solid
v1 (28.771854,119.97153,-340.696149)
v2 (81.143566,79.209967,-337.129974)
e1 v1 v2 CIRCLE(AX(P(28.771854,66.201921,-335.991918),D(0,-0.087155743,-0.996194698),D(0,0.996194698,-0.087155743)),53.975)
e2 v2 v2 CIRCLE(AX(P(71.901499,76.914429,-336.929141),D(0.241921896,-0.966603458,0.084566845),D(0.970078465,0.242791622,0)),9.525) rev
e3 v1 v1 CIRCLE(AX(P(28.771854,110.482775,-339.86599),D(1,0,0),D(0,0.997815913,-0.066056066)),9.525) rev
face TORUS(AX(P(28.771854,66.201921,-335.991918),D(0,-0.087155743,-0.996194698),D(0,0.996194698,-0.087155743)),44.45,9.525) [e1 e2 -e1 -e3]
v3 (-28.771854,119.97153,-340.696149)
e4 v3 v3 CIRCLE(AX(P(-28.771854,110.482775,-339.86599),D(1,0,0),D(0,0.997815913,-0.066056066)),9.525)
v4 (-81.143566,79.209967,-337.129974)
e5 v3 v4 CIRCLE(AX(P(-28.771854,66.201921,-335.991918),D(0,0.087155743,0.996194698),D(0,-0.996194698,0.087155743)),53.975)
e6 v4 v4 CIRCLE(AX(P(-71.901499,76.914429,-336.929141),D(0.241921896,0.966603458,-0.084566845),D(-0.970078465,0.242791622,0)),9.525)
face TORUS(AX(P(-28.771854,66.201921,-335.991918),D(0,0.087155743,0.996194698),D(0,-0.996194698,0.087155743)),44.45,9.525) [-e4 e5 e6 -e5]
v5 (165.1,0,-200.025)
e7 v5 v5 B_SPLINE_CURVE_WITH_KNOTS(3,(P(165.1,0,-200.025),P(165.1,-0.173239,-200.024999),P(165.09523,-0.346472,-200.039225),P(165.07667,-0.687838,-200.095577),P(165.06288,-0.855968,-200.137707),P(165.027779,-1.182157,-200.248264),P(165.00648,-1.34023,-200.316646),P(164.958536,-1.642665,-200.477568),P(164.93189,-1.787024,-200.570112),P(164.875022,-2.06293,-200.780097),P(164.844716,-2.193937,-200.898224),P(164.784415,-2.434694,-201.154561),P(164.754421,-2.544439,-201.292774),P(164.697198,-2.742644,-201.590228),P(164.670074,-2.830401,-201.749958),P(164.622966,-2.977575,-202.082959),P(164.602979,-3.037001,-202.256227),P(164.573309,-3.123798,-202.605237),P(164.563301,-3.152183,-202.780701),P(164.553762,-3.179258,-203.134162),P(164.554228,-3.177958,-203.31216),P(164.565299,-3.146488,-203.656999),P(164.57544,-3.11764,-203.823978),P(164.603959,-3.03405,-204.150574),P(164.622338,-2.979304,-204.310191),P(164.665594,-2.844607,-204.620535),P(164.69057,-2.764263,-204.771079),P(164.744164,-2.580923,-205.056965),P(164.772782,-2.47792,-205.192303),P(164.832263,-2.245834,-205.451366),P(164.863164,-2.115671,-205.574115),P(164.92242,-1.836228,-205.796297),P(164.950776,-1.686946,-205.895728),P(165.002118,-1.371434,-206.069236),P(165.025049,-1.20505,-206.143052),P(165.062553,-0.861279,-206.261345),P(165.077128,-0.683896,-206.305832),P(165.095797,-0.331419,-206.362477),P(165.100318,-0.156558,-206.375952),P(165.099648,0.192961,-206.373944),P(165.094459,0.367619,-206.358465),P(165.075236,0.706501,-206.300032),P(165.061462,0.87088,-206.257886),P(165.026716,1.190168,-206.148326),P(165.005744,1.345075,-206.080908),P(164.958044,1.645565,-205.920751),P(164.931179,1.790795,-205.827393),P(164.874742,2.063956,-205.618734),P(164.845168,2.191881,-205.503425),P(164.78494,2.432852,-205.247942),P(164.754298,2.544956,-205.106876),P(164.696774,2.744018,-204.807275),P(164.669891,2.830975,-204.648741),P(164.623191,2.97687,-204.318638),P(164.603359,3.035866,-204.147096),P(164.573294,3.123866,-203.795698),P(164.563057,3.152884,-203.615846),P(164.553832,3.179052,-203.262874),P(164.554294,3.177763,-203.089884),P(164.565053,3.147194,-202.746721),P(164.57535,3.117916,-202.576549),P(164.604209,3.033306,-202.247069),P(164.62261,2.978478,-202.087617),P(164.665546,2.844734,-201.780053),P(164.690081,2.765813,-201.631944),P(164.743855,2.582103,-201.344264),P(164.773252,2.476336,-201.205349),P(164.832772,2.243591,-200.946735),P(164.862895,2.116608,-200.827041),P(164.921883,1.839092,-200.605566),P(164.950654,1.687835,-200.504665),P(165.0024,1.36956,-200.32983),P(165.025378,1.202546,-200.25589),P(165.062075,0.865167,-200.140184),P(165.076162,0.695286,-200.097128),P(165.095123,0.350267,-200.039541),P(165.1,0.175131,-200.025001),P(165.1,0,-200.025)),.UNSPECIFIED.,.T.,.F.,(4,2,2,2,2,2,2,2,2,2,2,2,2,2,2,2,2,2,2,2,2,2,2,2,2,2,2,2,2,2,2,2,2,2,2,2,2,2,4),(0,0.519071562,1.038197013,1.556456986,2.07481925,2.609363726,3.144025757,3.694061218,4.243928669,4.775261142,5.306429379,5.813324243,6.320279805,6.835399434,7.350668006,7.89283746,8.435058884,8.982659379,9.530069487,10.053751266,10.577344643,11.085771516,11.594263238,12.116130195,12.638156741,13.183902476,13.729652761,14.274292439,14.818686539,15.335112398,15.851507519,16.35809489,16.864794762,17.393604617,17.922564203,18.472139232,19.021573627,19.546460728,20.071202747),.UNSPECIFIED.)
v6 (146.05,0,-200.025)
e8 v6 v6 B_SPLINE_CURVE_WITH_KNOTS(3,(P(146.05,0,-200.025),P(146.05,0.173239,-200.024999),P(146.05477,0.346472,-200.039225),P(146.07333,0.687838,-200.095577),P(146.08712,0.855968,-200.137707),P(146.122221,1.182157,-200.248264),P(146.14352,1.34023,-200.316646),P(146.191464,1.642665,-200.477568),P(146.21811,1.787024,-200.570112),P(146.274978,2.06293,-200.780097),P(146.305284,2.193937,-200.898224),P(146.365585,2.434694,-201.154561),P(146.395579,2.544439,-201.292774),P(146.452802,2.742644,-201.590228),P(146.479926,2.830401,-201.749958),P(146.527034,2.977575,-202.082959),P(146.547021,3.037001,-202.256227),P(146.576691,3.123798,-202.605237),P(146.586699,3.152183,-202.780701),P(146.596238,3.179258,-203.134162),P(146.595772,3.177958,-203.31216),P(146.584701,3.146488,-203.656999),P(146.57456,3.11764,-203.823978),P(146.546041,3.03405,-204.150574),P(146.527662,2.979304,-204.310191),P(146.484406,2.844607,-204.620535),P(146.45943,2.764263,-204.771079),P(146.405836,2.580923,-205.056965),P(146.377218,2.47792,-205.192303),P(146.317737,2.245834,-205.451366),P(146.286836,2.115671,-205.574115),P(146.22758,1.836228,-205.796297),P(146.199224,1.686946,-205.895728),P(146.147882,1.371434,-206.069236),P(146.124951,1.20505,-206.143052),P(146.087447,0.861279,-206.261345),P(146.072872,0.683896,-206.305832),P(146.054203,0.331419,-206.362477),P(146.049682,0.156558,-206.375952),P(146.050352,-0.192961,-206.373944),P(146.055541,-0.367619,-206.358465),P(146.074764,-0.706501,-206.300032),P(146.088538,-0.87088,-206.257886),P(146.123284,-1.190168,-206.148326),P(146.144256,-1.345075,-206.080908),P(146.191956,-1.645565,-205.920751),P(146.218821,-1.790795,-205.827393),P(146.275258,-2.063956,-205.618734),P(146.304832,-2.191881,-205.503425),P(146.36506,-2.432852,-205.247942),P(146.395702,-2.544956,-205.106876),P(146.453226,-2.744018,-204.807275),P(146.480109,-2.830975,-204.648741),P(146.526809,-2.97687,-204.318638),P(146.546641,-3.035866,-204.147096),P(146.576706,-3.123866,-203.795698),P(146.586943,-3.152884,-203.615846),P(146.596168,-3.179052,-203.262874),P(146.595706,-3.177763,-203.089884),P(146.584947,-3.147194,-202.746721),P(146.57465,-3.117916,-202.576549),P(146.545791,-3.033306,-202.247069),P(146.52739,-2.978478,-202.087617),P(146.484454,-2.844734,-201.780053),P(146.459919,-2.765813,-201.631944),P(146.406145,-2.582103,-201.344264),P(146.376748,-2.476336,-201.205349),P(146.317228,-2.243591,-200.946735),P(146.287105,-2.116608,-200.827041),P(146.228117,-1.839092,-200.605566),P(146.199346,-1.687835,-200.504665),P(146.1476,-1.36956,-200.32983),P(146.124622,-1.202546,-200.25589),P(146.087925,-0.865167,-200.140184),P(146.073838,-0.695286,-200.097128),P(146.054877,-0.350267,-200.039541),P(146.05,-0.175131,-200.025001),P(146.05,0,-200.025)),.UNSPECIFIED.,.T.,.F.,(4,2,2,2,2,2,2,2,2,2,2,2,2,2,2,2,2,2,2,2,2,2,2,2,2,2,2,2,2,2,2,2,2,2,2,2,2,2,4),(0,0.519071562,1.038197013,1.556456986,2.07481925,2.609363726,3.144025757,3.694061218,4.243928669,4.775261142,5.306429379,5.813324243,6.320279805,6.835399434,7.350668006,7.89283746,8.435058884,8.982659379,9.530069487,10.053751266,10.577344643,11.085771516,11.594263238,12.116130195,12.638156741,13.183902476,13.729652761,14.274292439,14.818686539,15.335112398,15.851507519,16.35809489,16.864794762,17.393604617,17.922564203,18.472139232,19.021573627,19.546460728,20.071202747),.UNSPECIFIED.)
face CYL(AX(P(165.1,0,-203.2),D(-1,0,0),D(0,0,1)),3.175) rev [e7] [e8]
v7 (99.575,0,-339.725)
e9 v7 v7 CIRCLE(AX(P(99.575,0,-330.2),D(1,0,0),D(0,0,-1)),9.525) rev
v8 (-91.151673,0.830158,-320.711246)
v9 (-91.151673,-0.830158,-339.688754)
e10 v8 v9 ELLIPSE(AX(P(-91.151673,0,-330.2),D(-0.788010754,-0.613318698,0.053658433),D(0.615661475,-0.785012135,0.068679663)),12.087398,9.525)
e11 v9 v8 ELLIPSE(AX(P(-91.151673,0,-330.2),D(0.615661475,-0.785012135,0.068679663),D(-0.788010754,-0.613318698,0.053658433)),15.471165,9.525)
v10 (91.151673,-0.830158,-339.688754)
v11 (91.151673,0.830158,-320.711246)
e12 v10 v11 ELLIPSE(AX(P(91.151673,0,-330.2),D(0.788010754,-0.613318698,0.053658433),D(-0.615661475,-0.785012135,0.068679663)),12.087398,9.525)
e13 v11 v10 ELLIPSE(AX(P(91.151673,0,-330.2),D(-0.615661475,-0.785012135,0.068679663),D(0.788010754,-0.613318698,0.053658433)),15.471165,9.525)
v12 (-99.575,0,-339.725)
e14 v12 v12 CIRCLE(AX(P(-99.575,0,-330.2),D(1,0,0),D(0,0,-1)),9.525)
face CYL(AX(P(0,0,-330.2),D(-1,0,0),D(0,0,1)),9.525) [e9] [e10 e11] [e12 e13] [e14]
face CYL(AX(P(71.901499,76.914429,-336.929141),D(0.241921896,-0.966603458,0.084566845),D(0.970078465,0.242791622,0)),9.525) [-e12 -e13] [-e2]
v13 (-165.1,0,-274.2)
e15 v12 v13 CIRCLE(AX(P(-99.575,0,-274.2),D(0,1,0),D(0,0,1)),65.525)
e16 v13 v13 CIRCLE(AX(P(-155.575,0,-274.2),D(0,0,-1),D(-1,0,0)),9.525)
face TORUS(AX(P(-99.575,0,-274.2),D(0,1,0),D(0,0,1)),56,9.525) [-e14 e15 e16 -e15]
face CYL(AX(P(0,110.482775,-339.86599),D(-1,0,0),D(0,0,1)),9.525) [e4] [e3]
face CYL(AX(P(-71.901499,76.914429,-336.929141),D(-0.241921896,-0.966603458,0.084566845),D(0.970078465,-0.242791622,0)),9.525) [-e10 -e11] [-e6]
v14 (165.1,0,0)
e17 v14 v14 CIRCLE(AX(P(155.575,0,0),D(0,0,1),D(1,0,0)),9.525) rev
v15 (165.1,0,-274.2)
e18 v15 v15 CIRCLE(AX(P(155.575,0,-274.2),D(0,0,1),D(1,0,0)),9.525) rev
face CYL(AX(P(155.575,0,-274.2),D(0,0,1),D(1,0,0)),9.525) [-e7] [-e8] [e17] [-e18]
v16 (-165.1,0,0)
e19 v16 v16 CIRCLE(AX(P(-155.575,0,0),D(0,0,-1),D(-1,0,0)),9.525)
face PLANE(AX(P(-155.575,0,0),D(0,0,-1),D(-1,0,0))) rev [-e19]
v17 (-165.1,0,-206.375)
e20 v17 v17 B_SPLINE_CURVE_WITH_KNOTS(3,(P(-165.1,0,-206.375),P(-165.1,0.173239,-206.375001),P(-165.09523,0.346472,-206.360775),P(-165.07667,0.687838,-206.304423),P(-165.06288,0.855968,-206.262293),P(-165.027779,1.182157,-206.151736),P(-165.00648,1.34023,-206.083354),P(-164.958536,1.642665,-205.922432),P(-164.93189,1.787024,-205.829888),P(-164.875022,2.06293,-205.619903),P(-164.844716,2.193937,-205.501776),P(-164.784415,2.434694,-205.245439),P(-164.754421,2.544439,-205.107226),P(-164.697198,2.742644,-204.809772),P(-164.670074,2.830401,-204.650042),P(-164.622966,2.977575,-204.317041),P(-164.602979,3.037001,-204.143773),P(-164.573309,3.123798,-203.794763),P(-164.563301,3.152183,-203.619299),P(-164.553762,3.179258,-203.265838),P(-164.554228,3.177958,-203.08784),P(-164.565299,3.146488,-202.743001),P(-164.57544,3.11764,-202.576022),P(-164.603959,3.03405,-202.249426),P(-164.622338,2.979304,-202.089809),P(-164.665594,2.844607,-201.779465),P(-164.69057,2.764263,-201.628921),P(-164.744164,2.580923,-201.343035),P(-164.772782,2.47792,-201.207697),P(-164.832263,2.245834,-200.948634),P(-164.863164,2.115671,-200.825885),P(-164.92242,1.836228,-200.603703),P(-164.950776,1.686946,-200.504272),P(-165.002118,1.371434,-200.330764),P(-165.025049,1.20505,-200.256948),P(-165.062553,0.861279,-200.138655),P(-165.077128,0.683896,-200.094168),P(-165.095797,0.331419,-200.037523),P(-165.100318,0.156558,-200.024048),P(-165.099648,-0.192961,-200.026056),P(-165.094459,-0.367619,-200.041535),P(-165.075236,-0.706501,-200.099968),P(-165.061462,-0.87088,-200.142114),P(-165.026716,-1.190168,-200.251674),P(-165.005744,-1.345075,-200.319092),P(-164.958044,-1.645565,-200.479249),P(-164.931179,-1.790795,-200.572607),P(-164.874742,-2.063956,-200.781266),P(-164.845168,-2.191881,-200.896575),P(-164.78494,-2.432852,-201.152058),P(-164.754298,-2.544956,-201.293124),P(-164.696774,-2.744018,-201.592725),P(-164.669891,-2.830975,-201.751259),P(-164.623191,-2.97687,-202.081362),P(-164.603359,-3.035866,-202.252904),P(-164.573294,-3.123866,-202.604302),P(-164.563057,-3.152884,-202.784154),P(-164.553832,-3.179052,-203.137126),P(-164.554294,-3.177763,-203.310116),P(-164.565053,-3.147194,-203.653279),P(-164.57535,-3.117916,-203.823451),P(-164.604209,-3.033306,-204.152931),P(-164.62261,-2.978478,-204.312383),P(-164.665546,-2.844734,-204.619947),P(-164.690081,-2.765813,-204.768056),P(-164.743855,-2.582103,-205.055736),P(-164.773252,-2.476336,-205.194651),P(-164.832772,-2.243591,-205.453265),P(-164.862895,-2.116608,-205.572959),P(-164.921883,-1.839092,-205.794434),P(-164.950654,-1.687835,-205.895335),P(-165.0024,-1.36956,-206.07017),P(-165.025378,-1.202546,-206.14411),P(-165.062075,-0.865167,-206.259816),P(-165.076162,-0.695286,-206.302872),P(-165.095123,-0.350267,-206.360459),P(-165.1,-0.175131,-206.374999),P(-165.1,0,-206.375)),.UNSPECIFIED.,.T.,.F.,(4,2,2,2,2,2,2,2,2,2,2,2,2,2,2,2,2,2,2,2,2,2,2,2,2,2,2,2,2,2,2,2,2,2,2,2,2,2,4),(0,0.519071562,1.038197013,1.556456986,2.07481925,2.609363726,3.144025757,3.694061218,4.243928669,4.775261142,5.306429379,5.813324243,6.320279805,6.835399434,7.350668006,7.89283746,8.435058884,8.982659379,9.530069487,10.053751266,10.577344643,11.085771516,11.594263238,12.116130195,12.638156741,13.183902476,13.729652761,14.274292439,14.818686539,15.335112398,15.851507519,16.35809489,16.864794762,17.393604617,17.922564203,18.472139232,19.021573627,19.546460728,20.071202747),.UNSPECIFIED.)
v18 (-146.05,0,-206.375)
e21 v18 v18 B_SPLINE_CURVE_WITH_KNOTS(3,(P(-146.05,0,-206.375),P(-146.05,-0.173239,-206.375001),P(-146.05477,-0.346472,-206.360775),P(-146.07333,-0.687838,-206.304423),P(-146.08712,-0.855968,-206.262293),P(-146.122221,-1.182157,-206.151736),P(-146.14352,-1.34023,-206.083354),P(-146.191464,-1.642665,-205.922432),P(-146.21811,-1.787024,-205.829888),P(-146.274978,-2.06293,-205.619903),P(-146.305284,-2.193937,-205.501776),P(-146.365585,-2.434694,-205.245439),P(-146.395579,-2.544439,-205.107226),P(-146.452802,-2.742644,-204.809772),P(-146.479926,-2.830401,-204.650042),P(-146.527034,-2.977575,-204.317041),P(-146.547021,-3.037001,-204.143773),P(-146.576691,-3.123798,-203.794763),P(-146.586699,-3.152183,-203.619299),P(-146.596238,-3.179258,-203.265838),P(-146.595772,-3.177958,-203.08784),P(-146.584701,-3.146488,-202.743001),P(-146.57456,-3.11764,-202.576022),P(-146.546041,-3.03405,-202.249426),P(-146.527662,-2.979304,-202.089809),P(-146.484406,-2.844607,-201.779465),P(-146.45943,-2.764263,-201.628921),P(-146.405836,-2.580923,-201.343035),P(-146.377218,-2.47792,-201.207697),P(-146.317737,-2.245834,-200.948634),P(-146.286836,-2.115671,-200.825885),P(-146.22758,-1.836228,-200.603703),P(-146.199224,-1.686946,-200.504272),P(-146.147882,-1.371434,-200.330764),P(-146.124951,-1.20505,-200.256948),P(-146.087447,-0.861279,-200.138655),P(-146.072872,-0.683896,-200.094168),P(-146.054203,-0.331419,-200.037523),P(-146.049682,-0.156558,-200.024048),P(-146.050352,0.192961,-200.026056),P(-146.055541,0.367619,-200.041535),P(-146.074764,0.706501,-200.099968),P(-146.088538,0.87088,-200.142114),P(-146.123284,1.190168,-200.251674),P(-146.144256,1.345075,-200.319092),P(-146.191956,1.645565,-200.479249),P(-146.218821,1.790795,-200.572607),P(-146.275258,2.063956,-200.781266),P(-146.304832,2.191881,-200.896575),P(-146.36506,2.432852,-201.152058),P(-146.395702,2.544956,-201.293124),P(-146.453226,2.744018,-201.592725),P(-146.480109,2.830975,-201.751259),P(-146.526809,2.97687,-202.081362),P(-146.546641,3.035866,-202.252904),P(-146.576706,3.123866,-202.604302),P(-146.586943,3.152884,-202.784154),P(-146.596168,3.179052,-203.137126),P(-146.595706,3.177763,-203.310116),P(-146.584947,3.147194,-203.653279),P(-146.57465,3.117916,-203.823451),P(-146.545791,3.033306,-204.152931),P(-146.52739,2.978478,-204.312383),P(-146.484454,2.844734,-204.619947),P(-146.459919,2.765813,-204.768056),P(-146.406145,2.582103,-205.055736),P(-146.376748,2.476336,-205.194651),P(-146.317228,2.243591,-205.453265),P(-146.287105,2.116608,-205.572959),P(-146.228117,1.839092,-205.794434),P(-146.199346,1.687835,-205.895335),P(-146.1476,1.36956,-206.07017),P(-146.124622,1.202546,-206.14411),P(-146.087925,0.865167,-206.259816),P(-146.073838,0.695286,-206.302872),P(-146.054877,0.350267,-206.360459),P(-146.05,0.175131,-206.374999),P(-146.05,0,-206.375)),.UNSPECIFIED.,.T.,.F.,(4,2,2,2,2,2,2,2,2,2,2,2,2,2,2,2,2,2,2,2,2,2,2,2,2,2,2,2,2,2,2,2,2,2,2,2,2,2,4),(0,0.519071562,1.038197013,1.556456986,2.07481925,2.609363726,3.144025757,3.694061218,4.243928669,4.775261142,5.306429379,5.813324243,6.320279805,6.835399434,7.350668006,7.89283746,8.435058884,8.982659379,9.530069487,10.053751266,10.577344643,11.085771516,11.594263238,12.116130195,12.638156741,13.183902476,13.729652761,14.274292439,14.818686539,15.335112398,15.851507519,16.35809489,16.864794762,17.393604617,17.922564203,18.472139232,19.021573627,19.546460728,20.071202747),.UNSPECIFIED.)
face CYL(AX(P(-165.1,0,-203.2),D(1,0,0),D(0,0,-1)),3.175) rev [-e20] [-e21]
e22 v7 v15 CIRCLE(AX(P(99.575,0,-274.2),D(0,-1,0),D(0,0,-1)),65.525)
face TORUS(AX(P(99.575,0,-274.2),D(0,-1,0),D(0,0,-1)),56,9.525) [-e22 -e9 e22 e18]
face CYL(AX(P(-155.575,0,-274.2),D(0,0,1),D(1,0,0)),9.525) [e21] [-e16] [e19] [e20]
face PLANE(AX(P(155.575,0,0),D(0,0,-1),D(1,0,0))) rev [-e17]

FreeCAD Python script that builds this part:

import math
import FreeCAD as App
import Part
import Sketcher
from FreeCAD import Vector
Q = App.Units.Quantity

doc = App.newDocument("Part")
body = doc.addObject("PartDesign::Body", "Body")

sketch1 = doc.addObject("Sketcher::SketchObject", "Sketch")
body.addObject(sketch1)
sketch1.AttachmentSupport = (doc.YZ_Plane, [""])
sketch1.MapMode = "FlatFace"
sketch1.addGeometry(Part.Circle(Vector(110, -340, 0), Vector(0, 0, 1), 10), False)
sketch1.addConstraint([
    Sketcher.Constraint("Diameter", 0, Q("0.75 in")),
    Sketcher.Constraint("DistanceY", 0, 3, -1, 1, Q("339.86599 mm")),
    Sketcher.Constraint("DistanceX", -1, 1, 0, 3, Q("110.482775 mm")),
])

sketch2 = doc.addObject("Sketcher::SketchObject", "Sketch001")
body.addObject(sketch2)
sketch2.Placement = App.Placement(Vector(0, -28.669314, -327.69176), App.Rotation(Vector(0, 0.996194698, -0.087155743), Vector(1, 0, 0), Vector(0, -0.087155743, -0.996194698), "ZXY"))
sketch2.addGeometry([
    Part.LineSegment(Vector(140, 0, 0), Vector(140, -29, 0)),
    Part.ArcOfCircle(Part.Circle(Vector(95, -29, 0), Vector(0, 0, 1), 44), math.radians(-76), math.radians(0)),
    Part.LineSegment(Vector(106, -72, 0), Vector(29, -91, 0)),
], False)
sketch2.addConstraint([
    Sketcher.Constraint("Tangent", 0, 2, 1, 2),
    Sketcher.Constraint("Tangent", 1, 1, 2, 1),
    Sketcher.Constraint("Vertical", 0),
    Sketcher.Constraint("PointOnObject", 0, 1, -1),
    Sketcher.Constraint("Radius", 1, Q("1.75 in")),
    Sketcher.Constraint("Angle", 2, Q("-166 deg")),
    Sketcher.Constraint("DistanceY", 1, 1, -1, 1, Q("71.901499 mm")),
    Sketcher.Constraint("DistanceX", 2, 2, 1, 3, Q("66.454802 mm")),
    Sketcher.Constraint("DistanceX", -1, 1, 1, 3, Q("95.233628 mm")),
])
doc.recompute()

additivepipe = doc.addObject("PartDesign::AdditivePipe", "AdditivePipe")
body.addObject(additivepipe)
additivepipe.Profile = sketch1
additivepipe.Spine = (sketch2, ["Edge1", "Edge2", "Edge3"])

sketch3 = doc.addObject("Sketcher::SketchObject", "Sketch002")
body.addObject(sketch3)
sketch3.AttachmentSupport = (doc.YZ_Plane, [""])
sketch3.MapMode = "FlatFace"
sketch3.addGeometry(Part.Circle(Vector(0, -330, 0), Vector(0, 0, 1), 10), False)
sketch3.addConstraint([
    Sketcher.Constraint("PointOnObject", 0, 3, -2),
    Sketcher.Constraint("Diameter", 0, Q("0.75 in")),
    Sketcher.Constraint("DistanceY", 0, 3, -1, 1, Q("13 in")),
])

sketch4 = doc.addObject("Sketcher::SketchObject", "Sketch003")
body.addObject(sketch4)
sketch4.AttachmentSupport = (doc.XZ_Plane, [""])
sketch4.MapMode = "FlatFace"
sketch4.addGeometry([
    Part.LineSegment(Vector(0, -330, 0), Vector(-100, -330, 0)),
    Part.ArcOfCircle(Part.Circle(Vector(-100, -274, 0), Vector(0, 0, 1), 56), math.radians(-180), math.radians(-90)),
    Part.LineSegment(Vector(-156, -274, 0), Vector(-156, 0, 0)),
], False)
sketch4.addConstraint([
    Sketcher.Constraint("Tangent", 0, 2, 1, 2),
    Sketcher.Constraint("Tangent", 1, 1, 2, 1),
    Sketcher.Constraint("Horizontal", 0),
    Sketcher.Constraint("Vertical", 2),
    Sketcher.Constraint("PointOnObject", 0, 1, -2),
    Sketcher.Constraint("PointOnObject", 2, 2, -1),
    Sketcher.Constraint("DistanceY", 0, 1, -1, 1, Q("13 in")),
    Sketcher.Constraint("Radius", 1, Q("56 mm")),
    Sketcher.Constraint("DistanceX", 1, 1, -1, 1, Q("6.125 in")),
])
doc.recompute()

additivepipe2 = doc.addObject("PartDesign::AdditivePipe", "AdditivePipe001")
body.addObject(additivepipe2)
additivepipe2.Profile = sketch3
additivepipe2.Spine = (sketch4, ["Edge1", "Edge2", "Edge3"])

sketch5 = doc.addObject("Sketcher::SketchObject", "Sketch004")
body.addObject(sketch5)
sketch5.AttachmentSupport = (doc.YZ_Plane, [""])
sketch5.MapMode = "FlatFace"
sketch5.addGeometry(Part.Circle(Vector(0, -203.2, 0), Vector(0, 0, 1), 3.2), False)
sketch5.addConstraint([
    Sketcher.Constraint("PointOnObject", 0, 3, -2),
    Sketcher.Constraint("Diameter", 0, Q("0.25 in")),
    Sketcher.Constraint("DistanceY", 0, 3, -1, 1, Q("8 in")),
])
pocket1 = doc.addObject("PartDesign::Pocket", "Pocket")
body.addObject(pocket1)
pocket1.Profile = sketch5
pocket1.Type = "ThroughAll"
doc.recompute()

mirrored = doc.addObject("PartDesign::Mirrored", "Mirrored")
body.addObject(mirrored)
mirrored.Originals = [additivepipe, additivepipe2, pocket1]
mirrored.MirrorPlane = (doc.YZ_Plane, [""])
body.Tip = mirrored

doc.recompute()
